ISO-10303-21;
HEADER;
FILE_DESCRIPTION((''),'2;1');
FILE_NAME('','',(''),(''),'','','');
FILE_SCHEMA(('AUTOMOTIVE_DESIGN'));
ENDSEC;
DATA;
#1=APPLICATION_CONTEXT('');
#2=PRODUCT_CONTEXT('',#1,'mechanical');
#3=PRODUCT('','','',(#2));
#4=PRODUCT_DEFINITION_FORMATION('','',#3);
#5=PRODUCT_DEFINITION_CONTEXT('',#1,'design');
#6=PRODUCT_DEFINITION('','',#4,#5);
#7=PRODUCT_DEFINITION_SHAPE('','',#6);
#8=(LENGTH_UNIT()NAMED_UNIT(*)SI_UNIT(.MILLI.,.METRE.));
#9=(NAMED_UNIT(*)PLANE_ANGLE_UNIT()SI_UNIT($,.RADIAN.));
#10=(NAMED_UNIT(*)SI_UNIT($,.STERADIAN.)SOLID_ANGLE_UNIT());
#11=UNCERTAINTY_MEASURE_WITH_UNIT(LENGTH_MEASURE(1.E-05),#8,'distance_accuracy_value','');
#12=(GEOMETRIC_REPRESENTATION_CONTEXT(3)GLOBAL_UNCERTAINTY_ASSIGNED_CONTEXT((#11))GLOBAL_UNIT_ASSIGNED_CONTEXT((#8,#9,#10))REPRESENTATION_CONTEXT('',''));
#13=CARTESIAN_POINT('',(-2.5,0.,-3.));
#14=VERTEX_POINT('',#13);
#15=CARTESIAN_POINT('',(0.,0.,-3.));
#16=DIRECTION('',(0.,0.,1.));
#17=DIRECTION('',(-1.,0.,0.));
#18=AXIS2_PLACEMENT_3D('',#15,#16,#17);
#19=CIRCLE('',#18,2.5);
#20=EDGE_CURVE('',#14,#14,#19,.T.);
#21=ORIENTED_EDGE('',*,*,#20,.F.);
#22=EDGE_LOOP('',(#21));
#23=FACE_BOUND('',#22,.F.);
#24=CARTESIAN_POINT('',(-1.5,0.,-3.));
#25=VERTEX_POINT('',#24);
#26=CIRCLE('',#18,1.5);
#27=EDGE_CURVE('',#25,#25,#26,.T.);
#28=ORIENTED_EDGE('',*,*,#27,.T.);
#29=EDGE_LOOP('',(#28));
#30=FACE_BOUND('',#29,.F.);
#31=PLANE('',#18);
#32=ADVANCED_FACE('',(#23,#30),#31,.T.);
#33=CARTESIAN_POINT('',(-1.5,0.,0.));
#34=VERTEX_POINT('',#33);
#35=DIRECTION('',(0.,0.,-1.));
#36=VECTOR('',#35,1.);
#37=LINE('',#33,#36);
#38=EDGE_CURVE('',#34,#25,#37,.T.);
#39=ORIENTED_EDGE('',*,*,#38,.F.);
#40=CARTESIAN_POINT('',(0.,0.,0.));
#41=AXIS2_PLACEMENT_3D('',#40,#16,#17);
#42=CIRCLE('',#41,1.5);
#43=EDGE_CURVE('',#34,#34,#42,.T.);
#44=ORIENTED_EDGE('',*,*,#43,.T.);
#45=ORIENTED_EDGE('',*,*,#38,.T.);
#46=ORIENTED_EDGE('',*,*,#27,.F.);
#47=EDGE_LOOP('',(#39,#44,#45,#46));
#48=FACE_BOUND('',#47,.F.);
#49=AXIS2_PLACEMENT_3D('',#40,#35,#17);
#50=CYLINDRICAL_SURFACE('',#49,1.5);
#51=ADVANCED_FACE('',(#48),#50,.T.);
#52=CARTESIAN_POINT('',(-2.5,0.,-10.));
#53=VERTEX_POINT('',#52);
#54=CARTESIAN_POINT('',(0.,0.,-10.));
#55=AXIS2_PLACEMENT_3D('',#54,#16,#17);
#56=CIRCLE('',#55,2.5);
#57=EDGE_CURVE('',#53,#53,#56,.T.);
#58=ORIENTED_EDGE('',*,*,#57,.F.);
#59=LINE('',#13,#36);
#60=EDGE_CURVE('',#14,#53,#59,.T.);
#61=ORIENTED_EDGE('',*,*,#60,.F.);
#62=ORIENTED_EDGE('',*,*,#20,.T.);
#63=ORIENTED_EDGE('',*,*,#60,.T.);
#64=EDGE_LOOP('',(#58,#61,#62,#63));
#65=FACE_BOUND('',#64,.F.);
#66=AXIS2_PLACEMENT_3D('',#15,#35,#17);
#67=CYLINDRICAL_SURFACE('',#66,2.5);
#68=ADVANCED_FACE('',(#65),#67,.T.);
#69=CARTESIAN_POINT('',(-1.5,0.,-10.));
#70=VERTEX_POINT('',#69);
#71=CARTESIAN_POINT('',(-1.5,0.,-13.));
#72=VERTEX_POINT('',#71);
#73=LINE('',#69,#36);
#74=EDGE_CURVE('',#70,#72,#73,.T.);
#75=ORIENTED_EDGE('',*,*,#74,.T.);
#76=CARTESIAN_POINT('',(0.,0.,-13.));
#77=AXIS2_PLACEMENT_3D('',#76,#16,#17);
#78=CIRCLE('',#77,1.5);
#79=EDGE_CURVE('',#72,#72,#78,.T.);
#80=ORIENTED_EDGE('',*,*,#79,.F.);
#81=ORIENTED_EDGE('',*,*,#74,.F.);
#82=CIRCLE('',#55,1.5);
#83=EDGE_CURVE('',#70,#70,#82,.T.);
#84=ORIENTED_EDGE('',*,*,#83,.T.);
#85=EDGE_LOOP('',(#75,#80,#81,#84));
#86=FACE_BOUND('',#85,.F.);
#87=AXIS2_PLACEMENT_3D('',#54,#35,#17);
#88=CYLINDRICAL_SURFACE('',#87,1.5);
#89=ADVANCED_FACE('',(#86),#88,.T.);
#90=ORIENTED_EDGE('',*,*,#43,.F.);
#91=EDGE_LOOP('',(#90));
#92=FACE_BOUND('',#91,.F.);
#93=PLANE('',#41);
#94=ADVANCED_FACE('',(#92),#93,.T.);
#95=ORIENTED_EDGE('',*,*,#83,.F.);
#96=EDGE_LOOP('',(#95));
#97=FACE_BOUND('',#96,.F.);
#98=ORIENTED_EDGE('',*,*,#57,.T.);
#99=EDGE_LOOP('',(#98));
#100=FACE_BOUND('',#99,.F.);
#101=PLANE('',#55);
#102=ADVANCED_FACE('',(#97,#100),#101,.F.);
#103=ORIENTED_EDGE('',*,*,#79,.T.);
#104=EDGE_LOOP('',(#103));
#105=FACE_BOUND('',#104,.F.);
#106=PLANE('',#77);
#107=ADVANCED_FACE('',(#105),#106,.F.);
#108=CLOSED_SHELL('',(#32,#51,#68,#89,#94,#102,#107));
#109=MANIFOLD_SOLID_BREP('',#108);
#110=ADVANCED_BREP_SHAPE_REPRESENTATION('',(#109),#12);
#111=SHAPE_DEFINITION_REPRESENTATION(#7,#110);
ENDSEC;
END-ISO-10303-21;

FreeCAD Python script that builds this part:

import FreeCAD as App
import Part
import Sketcher


def add_polygon(sketch, points):
    """Adds a closed chain of lines whose ends are joined by coincident constraints."""
    first, n = sketch.GeometryCount, len(points)
    for a, b in zip(points, points[1:] + points[:1]):
        sketch.addGeometry(Part.LineSegment(App.Vector(*a, 0), App.Vector(*b, 0)), False)
    for i in range(n):
        sketch.addConstraint(Sketcher.Constraint("Coincident", first + i, 2, first + (i + 1) % n, 1))

doc = App.newDocument("Part")
body = doc.addObject("PartDesign::Body", "Body")

# Sketch on XZ plane
sketch1 = body.newObject("Sketcher::SketchObject", "Sketch")
sketch1.AttachmentSupport = (doc.getObject("XZ_Plane"), [""])
sketch1.MapMode = "FlatFace"
add_polygon(sketch1, [(-1.5, 0), (0, 0), (0, -13), (-1.5, -13), (-1.5, -10), (-2.5, -10), (-2.5, -3), (-1.5, -3)])  # lines 0-7
sketch1.addConstraint([
    Sketcher.Constraint("Horizontal", 0),
    Sketcher.Constraint("Vertical", 1),
    Sketcher.Constraint("Horizontal", 2),
    Sketcher.Constraint("Vertical", 3),
    Sketcher.Constraint("Horizontal", 4),
    Sketcher.Constraint("Vertical", 5),
    Sketcher.Constraint("Horizontal", 6),
    Sketcher.Constraint("Vertical", 7),
    Sketcher.Constraint("Coincident", 0, 2, -1, 1),
    Sketcher.Constraint("Vertical", 3, 2, 6, 2),
    Sketcher.Constraint("Equal", 3, 7),
    Sketcher.Constraint("DistanceY", 3, 1, 3, 2, 3.0),
    Sketcher.Constraint("DistanceY", 5, 1, 5, 2, 7.0),
    Sketcher.Constraint("DistanceX", 4, 2, 4, 1, 1.0),
    Sketcher.Constraint("DistanceX", 0, 1, 0, 2, 1.5),
])
revolution = body.newObject("PartDesign::Revolution", "Revolution")
revolution.Profile = sketch1
revolution.ReferenceAxis = (sketch1, ["V_Axis"])
revolution.Angle = 360

doc.recompute()
